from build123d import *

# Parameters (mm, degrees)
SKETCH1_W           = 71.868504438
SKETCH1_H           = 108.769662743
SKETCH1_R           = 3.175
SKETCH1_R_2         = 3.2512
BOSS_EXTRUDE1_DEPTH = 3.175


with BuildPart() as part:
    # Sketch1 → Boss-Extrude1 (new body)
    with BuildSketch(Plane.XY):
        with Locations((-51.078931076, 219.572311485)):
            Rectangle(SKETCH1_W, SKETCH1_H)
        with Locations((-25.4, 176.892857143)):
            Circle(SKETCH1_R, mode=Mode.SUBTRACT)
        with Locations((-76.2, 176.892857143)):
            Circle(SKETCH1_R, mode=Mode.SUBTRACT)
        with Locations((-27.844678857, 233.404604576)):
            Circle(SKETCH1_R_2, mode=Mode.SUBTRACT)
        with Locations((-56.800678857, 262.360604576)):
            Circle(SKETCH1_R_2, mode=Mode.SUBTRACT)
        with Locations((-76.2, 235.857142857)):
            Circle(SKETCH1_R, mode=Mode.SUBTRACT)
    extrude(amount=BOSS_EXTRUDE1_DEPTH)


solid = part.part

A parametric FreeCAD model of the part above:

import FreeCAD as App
import Part
import Sketcher
Q = App.Units.Quantity


def add_polygon(sketch, points):
    """Adds a closed chain of lines whose ends are joined by coincident constraints."""
    first, n = sketch.GeometryCount, len(points)
    for a, b in zip(points, points[1:] + points[:1]):
        sketch.addGeometry(Part.LineSegment(App.Vector(*a, 0), App.Vector(*b, 0)), False)
    for i in range(n):
        sketch.addConstraint(Sketcher.Constraint("Coincident", first + i, 2, first + (i + 1) % n, 1))

doc = App.newDocument("Part")
body = doc.addObject("PartDesign::Body", "Body")

# Sketch on XY plane
sketch1 = body.newObject("Sketcher::SketchObject", "Sketch")
sketch1.AttachmentSupport = (doc.getObject("XY_Plane"), [""])
sketch1.MapMode = "FlatFace"
add_polygon(sketch1, [(-87, 274), (-87, 165.2), (-15.1, 165.2), (-15.1, 274)])  # lines 0-3
sketch1.addGeometry(Part.Circle(App.Vector(-76.2, 176.9, 0), App.Vector(0, 0, 1), 3.2), False)  # 4
sketch1.addGeometry(Part.Circle(App.Vector(-25.4, 176.9, 0), App.Vector(0, 0, 1), 3.2), False)  # 5
sketch1.addGeometry(Part.Circle(App.Vector(-76.2, 235.9, 0), App.Vector(0, 0, 1), 3.2), False)  # 6
sketch1.addGeometry(Part.Circle(App.Vector(-56.8, 262.4, 0), App.Vector(0, 0, 1), 3.3), False)  # 7
sketch1.addGeometry(Part.Circle(App.Vector(-27.8, 233.4, 0), App.Vector(0, 0, 1), 3.3), False)  # 8
sketch1.addConstraint(Sketcher.Constraint("Vertical", 0))
sketch1.addConstraint(Sketcher.Constraint("Horizontal", 1))
sketch1.addConstraint(Sketcher.Constraint("Vertical", 2))
sketch1.addConstraint(Sketcher.Constraint("Horizontal", 3))
sketch1.addConstraint(Sketcher.Constraint("Equal", 4, 5))
sketch1.addConstraint(Sketcher.Constraint("Equal", 5, 6))
sketch1.addConstraint(Sketcher.Constraint("Equal", 7, 8))
sketch1.addConstraint(Sketcher.Constraint("Horizontal", 4, 3, 5, 3))
sketch1.addConstraint(Sketcher.Constraint("Vertical", 4, 3, 6, 3))
sketch1.addConstraint(Sketcher.Constraint("Diameter", 4, Q("0.25 in")))
sketch1.addConstraint(Sketcher.Constraint("Diameter", 7, Q("0.256 in")))
sketch1.addConstraint(Sketcher.Constraint("DistanceX", 4, 3, -1, 1, Q("3 in")))
sketch1.addConstraint(Sketcher.Constraint("DistanceX", 5, 3, -1, 1, Q("1 in")))
sketch1.addConstraint(Sketcher.Constraint("DistanceX", 8, 3, 1, 2, Q("0.5 in")))
sketch1.addConstraint(Sketcher.Constraint("DistanceY", 6, 3, 2, 2, Q("1.5 in")))
sketch1.addConstraint(Sketcher.Constraint("DistanceX", 7, 3, 8, 3, Q("1.14 in")))
sketch1.addConstraint(Sketcher.Constraint("DistanceY", 8, 3, 7, 3, Q("1.14 in")))
sketch1.addConstraint(Sketcher.Constraint("DistanceX", 1, 1, 1, 2, Q("71.868504 mm")))
sketch1.addConstraint(Sketcher.Constraint("DistanceY", 0, 2, 0, 1, Q("108.769663 mm")))
sketch1.addConstraint(Sketcher.Constraint("DistanceX", 7, 3, -1, 1, Q("56.800679 mm")))
sketch1.addConstraint(Sketcher.Constraint("DistanceY", -1, 1, 0, 2, Q("165.18748 mm")))
sketch1.addConstraint(Sketcher.Constraint("DistanceY", 6, 3, 7, 3, Q("26.503462 mm")))
sketch1.addConstraint(Sketcher.Constraint("DistanceY", -1, 1, 4, 3, Q("176.892857 mm")))
pad1 = body.newObject("PartDesign::Pad", "Pad")
pad1.Profile = sketch1
pad1.Length = Q("0.125 in")

doc.recompute()
